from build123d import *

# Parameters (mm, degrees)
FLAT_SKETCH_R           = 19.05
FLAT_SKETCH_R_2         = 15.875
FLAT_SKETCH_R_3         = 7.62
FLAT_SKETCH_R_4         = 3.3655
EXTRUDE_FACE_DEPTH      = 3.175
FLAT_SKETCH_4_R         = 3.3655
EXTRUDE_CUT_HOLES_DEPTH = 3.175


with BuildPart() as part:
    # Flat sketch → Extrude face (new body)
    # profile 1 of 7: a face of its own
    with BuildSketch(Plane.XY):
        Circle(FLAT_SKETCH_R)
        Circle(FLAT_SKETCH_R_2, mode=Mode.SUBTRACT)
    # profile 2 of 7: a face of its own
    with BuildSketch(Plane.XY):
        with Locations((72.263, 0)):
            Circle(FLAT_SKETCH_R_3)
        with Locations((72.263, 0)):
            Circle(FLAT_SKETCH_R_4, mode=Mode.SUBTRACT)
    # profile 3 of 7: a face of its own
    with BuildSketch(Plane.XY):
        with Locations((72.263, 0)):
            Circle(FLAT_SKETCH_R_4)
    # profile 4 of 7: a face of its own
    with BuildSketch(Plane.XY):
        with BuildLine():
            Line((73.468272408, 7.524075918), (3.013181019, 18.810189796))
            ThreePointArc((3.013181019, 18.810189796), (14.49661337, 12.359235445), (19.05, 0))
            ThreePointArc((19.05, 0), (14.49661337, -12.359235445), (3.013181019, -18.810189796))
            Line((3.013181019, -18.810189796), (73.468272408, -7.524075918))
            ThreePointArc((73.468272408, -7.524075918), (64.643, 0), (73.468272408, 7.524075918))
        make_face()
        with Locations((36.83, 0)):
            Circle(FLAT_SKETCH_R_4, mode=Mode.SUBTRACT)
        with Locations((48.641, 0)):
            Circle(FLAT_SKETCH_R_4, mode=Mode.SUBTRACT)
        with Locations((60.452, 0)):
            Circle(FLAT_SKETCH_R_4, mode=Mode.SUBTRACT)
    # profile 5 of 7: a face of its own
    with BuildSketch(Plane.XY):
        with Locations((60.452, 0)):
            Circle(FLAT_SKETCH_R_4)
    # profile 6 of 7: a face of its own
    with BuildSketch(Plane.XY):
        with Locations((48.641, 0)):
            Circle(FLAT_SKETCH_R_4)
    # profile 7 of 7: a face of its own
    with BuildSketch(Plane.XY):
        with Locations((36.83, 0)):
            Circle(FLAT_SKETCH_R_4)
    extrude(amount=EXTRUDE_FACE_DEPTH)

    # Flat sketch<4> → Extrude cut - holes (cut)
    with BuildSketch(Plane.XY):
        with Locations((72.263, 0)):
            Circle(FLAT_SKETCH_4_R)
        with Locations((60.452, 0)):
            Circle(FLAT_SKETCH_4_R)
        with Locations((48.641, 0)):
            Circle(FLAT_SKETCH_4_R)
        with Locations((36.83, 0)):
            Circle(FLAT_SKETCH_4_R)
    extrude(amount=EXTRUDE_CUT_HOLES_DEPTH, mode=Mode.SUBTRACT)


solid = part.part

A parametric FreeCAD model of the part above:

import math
import FreeCAD as App
import Part
import Sketcher

V = App.Vector
Q = App.Units.Quantity

doc = App.newDocument("Part")
params = doc.addObject("Spreadsheet::Sheet", "Params")
for row, (alias, value) in enumerate([
    ("sketch1_radius", "0.3 in"),
    ("sketch1_diameter", "1.25 in"),
    ("sketch1_radius2", "0.75 in"),
    ("pad1_length", "0.125 in"),
    ("sketch2_diameter", "0.265 in"),
    ("pocket1_length", "0.125 in"),
], start=1):
    params.set(f"A{row}", alias)
    params.set(f"B{row}", "=" + value)
    params.setAlias(f"B{row}", alias)

body = doc.addObject("PartDesign::Body", "Body")

sketch1 = doc.addObject("Sketcher::SketchObject", "Sketch")
body.addObject(sketch1)
sketch1.AttachmentSupport = (doc.XY_Plane, [""])
sketch1.MapMode = "FlatFace"
sketch1.addGeometry([
    Part.ArcOfCircle(Part.Circle(V(0, 0, 0), V(0, 0, 1), 19), math.radians(81), math.radians(279)),
    Part.LineSegment(V(3, -19, 0), V(73, -8, 0)),
    Part.ArcOfCircle(Part.Circle(V(72, 0, 0), V(0, 0, 1), 8), math.radians(-81), math.radians(81)),
    Part.LineSegment(V(73, 8, 0), V(3, 19, 0)),
    Part.Circle(V(0, 0, 0), V(0, 0, 1), 16),
], False)
sketch1.addConstraint([
    Sketcher.Constraint("Tangent", 0, 2, 1, 1),
    Sketcher.Constraint("Tangent", 1, 2, 2, 1),
    Sketcher.Constraint("Tangent", 2, 2, 3, 1),
    Sketcher.Constraint("Tangent", 3, 2, 0, 1),
    Sketcher.Constraint("Coincident", 0, 3, -1, 1),
    Sketcher.Constraint("Coincident", 4, 3, -1, 1),
    Sketcher.Constraint("PointOnObject", 2, 3, -1),
    Sketcher.Constraint("Radius", 2, Q("0.3 in")),
    Sketcher.Constraint("Diameter", 4, Q("1.25 in")),
    Sketcher.Constraint("Radius", 0, Q("0.75 in")),
    Sketcher.Constraint("DistanceX", -1, 1, 2, 3, Q("2.845 in")),
])
sketch1.setExpression("Constraints[7]", "Params.sketch1_radius")
sketch1.setExpression("Constraints[8]", "Params.sketch1_diameter")
sketch1.setExpression("Constraints[9]", "Params.sketch1_radius2")
pad1 = doc.addObject("PartDesign::Pad", "Pad")
body.addObject(pad1)
pad1.Profile = sketch1
pad1.setExpression("Length", "Params.pad1_length")

sketch2 = doc.addObject("Sketcher::SketchObject", "Sketch001")
body.addObject(sketch2)
sketch2.AttachmentSupport = (doc.XY_Plane, [""])
sketch2.MapMode = "FlatFace"
sketch2.addGeometry([
    Part.Circle(V(72.3, 0, 0), V(0, 0, 1), 3.4),
    Part.Circle(V(60.5, 0, 0), V(0, 0, 1), 3.4),
    Part.Circle(V(48.6, 0, 0), V(0, 0, 1), 3.4),
    Part.Circle(V(36.8, 0, 0), V(0, 0, 1), 3.4),
], False)
sketch2.addConstraint([
    Sketcher.Constraint("Equal", 0, 1),
    Sketcher.Constraint("Equal", 1, 2),
    Sketcher.Constraint("Equal", 2, 3),
    Sketcher.Constraint("PointOnObject", 0, 3, -1),
    Sketcher.Constraint("PointOnObject", 1, 3, -1),
    Sketcher.Constraint("PointOnObject", 2, 3, -1),
    Sketcher.Constraint("PointOnObject", 3, 3, -1),
    Sketcher.Constraint("Diameter", 0, Q("0.265 in")),
    Sketcher.Constraint("DistanceX", -1, 1, 1, 3, Q("2.38 in")),
    Sketcher.Constraint("DistanceX", -1, 1, 3, 3, Q("1.45 in")),
    Sketcher.Constraint("DistanceX", 2, 3, 0, 3, Q("0.93 in")),
    Sketcher.Constraint("DistanceX", -1, 1, 0, 3, Q("2.845 in")),
])
sketch2.setExpression("Constraints[7]", "Params.sketch2_diameter")
pocket1 = doc.addObject("PartDesign::Pocket", "Pocket")
body.addObject(pocket1)
pocket1.Profile = sketch2
pocket1.setExpression("Length", "Params.pocket1_length")
pocket1.Reversed = True

doc.recompute()
